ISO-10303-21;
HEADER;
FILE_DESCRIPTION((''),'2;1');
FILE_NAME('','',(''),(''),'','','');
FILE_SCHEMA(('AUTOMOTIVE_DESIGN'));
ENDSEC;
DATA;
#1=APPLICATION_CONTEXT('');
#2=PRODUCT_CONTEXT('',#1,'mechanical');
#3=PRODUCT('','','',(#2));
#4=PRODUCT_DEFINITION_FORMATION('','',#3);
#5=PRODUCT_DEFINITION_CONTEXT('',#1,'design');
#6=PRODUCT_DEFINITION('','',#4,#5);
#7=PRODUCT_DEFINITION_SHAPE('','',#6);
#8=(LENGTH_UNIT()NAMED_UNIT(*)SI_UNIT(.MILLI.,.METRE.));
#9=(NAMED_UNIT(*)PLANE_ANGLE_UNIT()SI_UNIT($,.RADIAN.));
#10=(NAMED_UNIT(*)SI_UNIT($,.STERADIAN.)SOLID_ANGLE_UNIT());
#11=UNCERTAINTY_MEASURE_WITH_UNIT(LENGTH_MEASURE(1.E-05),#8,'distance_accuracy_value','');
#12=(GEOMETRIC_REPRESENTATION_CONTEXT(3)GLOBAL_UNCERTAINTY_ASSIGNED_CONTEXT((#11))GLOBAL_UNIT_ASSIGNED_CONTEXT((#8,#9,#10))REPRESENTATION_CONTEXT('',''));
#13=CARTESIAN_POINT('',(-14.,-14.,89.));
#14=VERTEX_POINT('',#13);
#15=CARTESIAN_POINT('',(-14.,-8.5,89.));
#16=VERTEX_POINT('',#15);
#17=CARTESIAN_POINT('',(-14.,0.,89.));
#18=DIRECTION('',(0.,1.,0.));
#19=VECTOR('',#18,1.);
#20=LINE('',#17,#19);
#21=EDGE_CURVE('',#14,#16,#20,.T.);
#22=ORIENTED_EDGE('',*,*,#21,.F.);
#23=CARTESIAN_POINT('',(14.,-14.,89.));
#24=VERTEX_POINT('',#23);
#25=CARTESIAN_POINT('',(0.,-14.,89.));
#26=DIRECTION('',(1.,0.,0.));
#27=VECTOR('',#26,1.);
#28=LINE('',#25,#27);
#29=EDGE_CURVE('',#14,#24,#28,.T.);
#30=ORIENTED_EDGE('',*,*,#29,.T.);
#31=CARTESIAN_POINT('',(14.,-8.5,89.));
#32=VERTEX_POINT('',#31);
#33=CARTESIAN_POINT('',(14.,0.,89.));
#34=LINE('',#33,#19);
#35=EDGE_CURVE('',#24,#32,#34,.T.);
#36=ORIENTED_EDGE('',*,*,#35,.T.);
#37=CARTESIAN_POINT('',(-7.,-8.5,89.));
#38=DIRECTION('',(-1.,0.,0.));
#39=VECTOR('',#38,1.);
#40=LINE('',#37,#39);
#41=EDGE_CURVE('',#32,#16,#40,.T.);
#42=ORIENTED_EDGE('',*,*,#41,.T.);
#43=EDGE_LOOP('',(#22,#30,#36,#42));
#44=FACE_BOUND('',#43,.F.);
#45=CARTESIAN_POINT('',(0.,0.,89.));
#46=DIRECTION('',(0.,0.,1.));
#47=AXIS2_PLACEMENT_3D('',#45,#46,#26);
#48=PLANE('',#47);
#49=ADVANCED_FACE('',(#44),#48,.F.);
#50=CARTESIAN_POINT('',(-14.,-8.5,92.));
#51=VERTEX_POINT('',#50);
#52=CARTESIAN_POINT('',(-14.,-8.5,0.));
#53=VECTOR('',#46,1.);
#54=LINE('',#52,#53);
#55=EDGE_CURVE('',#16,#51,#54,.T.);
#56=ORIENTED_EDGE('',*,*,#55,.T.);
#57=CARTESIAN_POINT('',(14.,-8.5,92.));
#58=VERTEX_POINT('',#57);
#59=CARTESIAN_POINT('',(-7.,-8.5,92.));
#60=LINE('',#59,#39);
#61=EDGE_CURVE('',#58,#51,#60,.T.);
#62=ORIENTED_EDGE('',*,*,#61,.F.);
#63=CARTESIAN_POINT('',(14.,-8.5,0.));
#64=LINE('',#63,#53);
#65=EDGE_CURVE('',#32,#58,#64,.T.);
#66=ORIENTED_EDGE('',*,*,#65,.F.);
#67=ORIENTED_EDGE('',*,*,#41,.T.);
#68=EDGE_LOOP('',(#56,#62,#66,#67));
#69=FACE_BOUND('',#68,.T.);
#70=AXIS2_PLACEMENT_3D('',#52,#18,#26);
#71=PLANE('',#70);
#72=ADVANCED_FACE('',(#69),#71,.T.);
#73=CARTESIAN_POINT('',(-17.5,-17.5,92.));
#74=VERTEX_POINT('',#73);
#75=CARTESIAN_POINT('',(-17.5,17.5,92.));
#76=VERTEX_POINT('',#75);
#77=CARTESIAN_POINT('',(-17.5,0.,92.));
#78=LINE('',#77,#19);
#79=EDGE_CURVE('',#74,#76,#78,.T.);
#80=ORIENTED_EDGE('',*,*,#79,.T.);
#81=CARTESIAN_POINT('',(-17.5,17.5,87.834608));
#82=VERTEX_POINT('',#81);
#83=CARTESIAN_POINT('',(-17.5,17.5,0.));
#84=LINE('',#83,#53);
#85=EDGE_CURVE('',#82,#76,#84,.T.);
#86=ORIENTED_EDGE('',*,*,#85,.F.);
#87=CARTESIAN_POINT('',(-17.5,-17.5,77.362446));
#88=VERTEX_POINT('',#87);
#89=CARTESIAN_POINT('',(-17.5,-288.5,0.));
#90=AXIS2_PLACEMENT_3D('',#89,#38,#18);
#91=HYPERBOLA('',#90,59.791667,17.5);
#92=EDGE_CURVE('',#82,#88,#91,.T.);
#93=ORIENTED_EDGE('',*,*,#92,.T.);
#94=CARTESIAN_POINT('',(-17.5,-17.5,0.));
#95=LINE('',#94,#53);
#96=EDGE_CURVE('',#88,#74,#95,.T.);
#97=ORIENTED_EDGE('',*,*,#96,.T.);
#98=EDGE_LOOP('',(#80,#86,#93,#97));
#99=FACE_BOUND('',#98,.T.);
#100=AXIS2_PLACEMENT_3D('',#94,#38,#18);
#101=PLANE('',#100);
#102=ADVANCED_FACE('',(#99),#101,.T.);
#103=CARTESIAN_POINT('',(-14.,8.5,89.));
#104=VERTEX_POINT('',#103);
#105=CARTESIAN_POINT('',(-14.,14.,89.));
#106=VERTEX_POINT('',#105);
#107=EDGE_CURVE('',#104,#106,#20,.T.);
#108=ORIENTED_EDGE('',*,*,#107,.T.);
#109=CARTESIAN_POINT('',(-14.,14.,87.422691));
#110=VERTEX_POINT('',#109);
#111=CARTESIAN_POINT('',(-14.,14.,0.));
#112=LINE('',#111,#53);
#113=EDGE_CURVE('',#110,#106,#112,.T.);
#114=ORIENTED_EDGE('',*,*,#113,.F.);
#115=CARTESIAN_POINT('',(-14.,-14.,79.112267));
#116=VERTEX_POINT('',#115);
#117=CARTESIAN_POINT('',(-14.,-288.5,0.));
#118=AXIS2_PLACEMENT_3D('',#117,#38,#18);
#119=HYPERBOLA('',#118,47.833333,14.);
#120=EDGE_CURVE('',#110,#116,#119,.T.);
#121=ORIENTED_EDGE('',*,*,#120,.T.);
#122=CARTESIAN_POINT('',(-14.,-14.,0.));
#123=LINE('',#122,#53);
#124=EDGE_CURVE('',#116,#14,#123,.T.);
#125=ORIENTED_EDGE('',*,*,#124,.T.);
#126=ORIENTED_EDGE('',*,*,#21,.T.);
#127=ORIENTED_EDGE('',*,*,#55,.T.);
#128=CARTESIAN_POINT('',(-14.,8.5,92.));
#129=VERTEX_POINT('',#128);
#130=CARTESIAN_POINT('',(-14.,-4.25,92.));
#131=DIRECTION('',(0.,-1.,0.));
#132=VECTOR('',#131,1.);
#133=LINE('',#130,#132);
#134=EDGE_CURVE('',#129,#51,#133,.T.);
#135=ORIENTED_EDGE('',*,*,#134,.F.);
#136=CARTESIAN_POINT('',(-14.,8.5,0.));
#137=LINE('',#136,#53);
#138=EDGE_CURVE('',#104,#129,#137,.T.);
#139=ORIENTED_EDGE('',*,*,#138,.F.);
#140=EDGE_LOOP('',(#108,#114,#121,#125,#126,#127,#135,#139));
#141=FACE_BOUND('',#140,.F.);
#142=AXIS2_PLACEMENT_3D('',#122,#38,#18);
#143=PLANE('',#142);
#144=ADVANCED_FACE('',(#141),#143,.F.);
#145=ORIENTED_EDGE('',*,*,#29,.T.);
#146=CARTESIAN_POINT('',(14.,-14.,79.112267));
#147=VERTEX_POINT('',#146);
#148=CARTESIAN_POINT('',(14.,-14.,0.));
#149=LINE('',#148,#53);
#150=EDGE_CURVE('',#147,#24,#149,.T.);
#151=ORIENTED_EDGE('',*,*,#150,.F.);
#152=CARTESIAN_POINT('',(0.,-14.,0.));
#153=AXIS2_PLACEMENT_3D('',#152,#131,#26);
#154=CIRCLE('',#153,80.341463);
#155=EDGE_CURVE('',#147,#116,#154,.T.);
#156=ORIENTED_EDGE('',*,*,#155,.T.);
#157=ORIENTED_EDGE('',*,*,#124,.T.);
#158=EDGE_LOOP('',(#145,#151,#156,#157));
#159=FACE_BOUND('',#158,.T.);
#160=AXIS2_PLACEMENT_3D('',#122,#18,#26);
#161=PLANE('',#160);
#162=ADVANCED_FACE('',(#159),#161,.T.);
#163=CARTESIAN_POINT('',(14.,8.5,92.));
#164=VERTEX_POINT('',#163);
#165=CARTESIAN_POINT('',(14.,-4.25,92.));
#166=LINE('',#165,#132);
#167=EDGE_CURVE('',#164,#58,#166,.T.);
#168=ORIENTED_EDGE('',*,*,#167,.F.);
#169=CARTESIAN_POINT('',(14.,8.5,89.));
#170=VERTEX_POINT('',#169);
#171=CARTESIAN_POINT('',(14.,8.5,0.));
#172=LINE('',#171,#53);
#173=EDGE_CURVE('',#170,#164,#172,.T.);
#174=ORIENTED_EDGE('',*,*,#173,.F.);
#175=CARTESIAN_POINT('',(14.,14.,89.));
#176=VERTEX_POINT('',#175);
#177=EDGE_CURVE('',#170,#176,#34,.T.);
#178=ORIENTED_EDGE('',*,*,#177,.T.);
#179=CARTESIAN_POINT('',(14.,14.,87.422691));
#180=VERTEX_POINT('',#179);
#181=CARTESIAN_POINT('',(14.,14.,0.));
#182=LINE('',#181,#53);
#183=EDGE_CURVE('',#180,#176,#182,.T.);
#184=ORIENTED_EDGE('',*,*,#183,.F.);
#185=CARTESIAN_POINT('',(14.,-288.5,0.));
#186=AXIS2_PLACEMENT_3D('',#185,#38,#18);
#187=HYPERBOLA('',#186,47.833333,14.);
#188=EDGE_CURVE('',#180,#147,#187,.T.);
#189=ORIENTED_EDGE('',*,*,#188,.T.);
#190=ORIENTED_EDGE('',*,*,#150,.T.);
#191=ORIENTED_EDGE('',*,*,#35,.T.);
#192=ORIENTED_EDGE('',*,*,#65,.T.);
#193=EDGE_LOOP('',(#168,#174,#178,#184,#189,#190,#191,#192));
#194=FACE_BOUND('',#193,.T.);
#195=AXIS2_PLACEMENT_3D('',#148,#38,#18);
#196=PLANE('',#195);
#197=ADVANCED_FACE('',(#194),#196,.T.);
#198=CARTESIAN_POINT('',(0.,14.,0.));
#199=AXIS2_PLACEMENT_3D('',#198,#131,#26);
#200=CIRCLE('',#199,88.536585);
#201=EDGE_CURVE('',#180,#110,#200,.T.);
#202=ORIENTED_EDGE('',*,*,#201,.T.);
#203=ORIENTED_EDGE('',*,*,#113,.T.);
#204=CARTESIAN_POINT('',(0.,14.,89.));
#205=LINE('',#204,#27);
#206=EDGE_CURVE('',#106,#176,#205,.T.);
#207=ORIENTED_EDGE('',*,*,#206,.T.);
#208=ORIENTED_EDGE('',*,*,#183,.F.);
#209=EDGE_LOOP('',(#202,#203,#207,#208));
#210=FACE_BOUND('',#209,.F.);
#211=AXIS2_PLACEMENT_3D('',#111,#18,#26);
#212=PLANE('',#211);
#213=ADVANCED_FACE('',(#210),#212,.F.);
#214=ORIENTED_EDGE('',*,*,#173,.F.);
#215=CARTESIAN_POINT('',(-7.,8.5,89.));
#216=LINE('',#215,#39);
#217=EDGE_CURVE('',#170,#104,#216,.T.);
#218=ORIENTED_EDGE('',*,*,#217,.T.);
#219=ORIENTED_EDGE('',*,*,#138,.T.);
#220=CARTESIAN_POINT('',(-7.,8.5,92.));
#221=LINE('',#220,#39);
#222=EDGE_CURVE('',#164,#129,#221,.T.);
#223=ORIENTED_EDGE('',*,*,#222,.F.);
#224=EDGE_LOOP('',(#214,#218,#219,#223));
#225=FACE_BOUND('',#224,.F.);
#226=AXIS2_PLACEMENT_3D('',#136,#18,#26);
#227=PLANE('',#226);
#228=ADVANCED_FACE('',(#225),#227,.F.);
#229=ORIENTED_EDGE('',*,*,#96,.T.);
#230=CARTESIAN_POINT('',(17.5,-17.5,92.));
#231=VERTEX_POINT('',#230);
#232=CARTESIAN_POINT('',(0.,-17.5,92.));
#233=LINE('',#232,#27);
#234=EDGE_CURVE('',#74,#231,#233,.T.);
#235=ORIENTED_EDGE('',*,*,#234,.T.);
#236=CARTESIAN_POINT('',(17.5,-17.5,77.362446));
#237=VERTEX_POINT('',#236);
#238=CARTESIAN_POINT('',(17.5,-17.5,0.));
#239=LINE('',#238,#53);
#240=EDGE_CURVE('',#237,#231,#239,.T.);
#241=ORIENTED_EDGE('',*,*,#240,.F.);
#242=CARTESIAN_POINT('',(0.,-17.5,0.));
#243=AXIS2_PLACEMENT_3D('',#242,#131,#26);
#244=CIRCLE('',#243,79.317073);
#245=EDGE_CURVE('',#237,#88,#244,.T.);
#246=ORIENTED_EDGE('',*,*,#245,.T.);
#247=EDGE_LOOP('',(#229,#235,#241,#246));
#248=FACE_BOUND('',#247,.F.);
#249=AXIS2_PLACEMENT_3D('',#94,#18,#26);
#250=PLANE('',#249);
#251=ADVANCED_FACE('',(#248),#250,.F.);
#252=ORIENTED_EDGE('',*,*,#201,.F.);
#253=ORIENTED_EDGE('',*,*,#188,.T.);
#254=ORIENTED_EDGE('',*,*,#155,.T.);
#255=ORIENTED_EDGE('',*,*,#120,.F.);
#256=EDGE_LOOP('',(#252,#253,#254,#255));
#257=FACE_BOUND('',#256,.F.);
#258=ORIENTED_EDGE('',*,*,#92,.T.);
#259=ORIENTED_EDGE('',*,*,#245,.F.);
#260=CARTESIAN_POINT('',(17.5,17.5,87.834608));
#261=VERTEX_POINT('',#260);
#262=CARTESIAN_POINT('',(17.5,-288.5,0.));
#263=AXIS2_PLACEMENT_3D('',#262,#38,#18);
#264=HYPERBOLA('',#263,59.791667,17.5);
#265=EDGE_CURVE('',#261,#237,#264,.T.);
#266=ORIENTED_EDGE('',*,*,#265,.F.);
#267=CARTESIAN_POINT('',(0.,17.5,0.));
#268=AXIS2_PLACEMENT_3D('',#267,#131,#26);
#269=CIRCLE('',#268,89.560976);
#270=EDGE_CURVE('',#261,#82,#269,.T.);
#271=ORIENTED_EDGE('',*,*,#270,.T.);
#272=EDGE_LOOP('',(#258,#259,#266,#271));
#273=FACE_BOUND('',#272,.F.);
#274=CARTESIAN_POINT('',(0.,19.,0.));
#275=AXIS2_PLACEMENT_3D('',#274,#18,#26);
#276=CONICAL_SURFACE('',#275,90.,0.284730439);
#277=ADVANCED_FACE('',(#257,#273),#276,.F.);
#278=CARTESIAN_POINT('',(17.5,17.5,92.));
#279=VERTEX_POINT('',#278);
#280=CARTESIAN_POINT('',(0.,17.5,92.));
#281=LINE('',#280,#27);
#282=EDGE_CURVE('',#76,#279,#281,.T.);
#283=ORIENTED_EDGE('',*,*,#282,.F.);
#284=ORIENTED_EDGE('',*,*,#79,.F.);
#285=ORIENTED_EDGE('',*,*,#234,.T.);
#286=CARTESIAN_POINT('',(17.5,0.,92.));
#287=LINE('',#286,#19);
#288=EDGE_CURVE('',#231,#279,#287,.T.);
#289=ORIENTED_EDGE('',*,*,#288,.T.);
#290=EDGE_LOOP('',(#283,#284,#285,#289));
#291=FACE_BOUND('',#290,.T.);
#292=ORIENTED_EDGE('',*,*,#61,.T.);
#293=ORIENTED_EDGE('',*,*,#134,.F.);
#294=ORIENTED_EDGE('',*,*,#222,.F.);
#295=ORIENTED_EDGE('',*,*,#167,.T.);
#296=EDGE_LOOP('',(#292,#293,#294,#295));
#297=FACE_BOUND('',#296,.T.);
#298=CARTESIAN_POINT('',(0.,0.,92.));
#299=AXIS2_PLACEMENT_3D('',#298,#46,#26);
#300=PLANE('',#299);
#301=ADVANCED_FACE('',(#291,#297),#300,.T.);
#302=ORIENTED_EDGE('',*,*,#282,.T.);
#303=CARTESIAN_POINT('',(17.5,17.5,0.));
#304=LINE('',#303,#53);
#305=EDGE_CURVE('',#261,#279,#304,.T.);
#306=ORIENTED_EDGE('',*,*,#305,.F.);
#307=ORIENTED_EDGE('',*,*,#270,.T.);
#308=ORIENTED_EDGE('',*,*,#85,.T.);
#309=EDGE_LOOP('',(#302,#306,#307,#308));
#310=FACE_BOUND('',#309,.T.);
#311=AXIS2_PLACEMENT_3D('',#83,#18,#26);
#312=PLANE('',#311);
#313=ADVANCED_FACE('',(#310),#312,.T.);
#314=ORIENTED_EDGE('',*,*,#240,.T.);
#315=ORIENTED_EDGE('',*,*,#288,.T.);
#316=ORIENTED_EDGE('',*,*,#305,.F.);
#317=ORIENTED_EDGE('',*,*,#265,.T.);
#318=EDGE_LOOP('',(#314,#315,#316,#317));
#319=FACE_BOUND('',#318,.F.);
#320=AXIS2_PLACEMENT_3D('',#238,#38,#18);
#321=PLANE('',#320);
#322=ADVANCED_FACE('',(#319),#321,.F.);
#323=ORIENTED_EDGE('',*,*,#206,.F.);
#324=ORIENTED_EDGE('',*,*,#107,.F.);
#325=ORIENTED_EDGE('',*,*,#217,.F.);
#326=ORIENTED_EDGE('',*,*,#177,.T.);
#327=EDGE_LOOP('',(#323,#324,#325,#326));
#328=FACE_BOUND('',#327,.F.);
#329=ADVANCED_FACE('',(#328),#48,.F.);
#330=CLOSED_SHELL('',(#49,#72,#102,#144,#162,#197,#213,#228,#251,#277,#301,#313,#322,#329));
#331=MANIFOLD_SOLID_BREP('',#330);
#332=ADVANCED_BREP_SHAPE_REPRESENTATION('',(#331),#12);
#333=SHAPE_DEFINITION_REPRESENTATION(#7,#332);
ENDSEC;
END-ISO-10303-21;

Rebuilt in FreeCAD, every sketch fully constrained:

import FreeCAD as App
import Part
import Sketcher
from FreeCAD import Vector
Q = App.Units.Quantity


def add_polygon(sketch, points):
    """Adds a closed chain of lines whose ends are joined by coincident constraints."""
    first, n = sketch.GeometryCount, len(points)
    for a, b in zip(points, points[1:] + points[:1]):
        sketch.addGeometry(Part.LineSegment(App.Vector(*a, 0), App.Vector(*b, 0)), False)
    for i in range(n):
        sketch.addConstraint(Sketcher.Constraint("Coincident", first + i, 2, first + (i + 1) % n, 1))

doc = App.newDocument("Part")
body = doc.addObject("PartDesign::Body", "Body")

sketch1 = body.newObject("Sketcher::SketchObject", "Sketch")
sketch1.AttachmentSupport = (doc.getObject("XY_Plane"), [""])
sketch1.MapMode = "FlatFace"
add_polygon(sketch1, [(0, 19), (90, 19), (78, -22), (0, -22)])
sketch1.addConstraint([
    Sketcher.Constraint("Horizontal", 0),
    Sketcher.Constraint("Horizontal", 2),
    Sketcher.Constraint("Vertical", 3),
    Sketcher.Constraint("PointOnObject", 2, 2, -2),
    Sketcher.Constraint("DistanceX", 0, 1, 0, 2, Q("90 mm")),
    Sketcher.Constraint("DistanceX", 2, 2, 2, 1, Q("78 mm")),
    Sketcher.Constraint("DistanceY", 3, 1, 3, 2, Q("41 mm")),
    Sketcher.Constraint("DistanceY", -1, 1, 0, 2, Q("19 mm")),
])
revolution = body.newObject("PartDesign::Revolution", "Revolution")
revolution.Profile = sketch1
revolution.ReferenceAxis = (sketch1, ["V_Axis"])
revolution.Angle = 360
body2 = doc.addObject("PartDesign::Body", "Body001")

sketch2 = body2.newObject("Sketcher::SketchObject", "Sketch001")
sketch2.AttachmentSupport = (doc.getObject("XY_Plane001"), [""])
sketch2.MapMode = "FlatFace"
add_polygon(sketch2, [(-18, 18), (-18, -18), (18, -18), (18, 18)])
sketch2.addConstraint([
    Sketcher.Constraint("Vertical", 0),
    Sketcher.Constraint("Horizontal", 1),
    Sketcher.Constraint("Vertical", 2),
    Sketcher.Constraint("Horizontal", 3),
    Sketcher.Constraint("Symmetric", 0, 2, 2, 2, -1, 1),
    Sketcher.Constraint("Equal", 3, 0),
    Sketcher.Constraint("DistanceX", 1, 1, 1, 2, Q("35 mm")),
])
pad1 = body2.newObject("PartDesign::Pad", "Pad")
pad1.Profile = sketch2
pad1.Length = 92

sketch3 = body2.newObject("Sketcher::SketchObject", "Sketch002")
sketch3.AttachmentSupport = (doc.getObject("XY_Plane001"), [""])
sketch3.MapMode = "FlatFace"
add_polygon(sketch3, [(-14, 14), (-14, -14), (14, -14), (14, 14)])
sketch3.addConstraint([
    Sketcher.Constraint("Vertical", 0),
    Sketcher.Constraint("Horizontal", 1),
    Sketcher.Constraint("Vertical", 2),
    Sketcher.Constraint("Horizontal", 3),
    Sketcher.Constraint("Symmetric", 0, 2, 2, 2, -1, 1),
    Sketcher.Constraint("Equal", 3, 0),
    Sketcher.Constraint("DistanceX", 1, 1, 1, 2, Q("28 mm")),
])
pocket1 = body2.newObject("PartDesign::Pocket", "Pocket")
pocket1.Profile = sketch3
pocket1.Length = 89
pocket1.Reversed = True

sketch4 = body2.newObject("Sketcher::SketchObject", "Sketch003")
sketch4.AttachmentSupport = (doc.getObject("XY_Plane001"), [""])
sketch4.MapMode = "FlatFace"
add_polygon(sketch4, [(-14, 8), (-14, -8), (14, -8), (14, 8)])
sketch4.addConstraint([
    Sketcher.Constraint("Vertical", 0),
    Sketcher.Constraint("Horizontal", 1),
    Sketcher.Constraint("Vertical", 2),
    Sketcher.Constraint("Horizontal", 3),
    Sketcher.Constraint("Symmetric", 0, 2, 2, 2, -1, 1),
    Sketcher.Constraint("DistanceX", 1, 1, 1, 2, Q("28 mm")),
    Sketcher.Constraint("DistanceY", 0, 2, 0, 1, Q("17 mm")),
])
pocket2 = body2.newObject("PartDesign::Pocket", "Pocket001")
pocket2.Profile = sketch4
pocket2.Type = "ThroughAll"
pocket2.Reversed = True
doc.recompute()

boolean = body2.newObject("PartDesign::Boolean", "Boolean")
boolean.Type = "Cut"
boolean.addObjects([body])

doc.recompute()
